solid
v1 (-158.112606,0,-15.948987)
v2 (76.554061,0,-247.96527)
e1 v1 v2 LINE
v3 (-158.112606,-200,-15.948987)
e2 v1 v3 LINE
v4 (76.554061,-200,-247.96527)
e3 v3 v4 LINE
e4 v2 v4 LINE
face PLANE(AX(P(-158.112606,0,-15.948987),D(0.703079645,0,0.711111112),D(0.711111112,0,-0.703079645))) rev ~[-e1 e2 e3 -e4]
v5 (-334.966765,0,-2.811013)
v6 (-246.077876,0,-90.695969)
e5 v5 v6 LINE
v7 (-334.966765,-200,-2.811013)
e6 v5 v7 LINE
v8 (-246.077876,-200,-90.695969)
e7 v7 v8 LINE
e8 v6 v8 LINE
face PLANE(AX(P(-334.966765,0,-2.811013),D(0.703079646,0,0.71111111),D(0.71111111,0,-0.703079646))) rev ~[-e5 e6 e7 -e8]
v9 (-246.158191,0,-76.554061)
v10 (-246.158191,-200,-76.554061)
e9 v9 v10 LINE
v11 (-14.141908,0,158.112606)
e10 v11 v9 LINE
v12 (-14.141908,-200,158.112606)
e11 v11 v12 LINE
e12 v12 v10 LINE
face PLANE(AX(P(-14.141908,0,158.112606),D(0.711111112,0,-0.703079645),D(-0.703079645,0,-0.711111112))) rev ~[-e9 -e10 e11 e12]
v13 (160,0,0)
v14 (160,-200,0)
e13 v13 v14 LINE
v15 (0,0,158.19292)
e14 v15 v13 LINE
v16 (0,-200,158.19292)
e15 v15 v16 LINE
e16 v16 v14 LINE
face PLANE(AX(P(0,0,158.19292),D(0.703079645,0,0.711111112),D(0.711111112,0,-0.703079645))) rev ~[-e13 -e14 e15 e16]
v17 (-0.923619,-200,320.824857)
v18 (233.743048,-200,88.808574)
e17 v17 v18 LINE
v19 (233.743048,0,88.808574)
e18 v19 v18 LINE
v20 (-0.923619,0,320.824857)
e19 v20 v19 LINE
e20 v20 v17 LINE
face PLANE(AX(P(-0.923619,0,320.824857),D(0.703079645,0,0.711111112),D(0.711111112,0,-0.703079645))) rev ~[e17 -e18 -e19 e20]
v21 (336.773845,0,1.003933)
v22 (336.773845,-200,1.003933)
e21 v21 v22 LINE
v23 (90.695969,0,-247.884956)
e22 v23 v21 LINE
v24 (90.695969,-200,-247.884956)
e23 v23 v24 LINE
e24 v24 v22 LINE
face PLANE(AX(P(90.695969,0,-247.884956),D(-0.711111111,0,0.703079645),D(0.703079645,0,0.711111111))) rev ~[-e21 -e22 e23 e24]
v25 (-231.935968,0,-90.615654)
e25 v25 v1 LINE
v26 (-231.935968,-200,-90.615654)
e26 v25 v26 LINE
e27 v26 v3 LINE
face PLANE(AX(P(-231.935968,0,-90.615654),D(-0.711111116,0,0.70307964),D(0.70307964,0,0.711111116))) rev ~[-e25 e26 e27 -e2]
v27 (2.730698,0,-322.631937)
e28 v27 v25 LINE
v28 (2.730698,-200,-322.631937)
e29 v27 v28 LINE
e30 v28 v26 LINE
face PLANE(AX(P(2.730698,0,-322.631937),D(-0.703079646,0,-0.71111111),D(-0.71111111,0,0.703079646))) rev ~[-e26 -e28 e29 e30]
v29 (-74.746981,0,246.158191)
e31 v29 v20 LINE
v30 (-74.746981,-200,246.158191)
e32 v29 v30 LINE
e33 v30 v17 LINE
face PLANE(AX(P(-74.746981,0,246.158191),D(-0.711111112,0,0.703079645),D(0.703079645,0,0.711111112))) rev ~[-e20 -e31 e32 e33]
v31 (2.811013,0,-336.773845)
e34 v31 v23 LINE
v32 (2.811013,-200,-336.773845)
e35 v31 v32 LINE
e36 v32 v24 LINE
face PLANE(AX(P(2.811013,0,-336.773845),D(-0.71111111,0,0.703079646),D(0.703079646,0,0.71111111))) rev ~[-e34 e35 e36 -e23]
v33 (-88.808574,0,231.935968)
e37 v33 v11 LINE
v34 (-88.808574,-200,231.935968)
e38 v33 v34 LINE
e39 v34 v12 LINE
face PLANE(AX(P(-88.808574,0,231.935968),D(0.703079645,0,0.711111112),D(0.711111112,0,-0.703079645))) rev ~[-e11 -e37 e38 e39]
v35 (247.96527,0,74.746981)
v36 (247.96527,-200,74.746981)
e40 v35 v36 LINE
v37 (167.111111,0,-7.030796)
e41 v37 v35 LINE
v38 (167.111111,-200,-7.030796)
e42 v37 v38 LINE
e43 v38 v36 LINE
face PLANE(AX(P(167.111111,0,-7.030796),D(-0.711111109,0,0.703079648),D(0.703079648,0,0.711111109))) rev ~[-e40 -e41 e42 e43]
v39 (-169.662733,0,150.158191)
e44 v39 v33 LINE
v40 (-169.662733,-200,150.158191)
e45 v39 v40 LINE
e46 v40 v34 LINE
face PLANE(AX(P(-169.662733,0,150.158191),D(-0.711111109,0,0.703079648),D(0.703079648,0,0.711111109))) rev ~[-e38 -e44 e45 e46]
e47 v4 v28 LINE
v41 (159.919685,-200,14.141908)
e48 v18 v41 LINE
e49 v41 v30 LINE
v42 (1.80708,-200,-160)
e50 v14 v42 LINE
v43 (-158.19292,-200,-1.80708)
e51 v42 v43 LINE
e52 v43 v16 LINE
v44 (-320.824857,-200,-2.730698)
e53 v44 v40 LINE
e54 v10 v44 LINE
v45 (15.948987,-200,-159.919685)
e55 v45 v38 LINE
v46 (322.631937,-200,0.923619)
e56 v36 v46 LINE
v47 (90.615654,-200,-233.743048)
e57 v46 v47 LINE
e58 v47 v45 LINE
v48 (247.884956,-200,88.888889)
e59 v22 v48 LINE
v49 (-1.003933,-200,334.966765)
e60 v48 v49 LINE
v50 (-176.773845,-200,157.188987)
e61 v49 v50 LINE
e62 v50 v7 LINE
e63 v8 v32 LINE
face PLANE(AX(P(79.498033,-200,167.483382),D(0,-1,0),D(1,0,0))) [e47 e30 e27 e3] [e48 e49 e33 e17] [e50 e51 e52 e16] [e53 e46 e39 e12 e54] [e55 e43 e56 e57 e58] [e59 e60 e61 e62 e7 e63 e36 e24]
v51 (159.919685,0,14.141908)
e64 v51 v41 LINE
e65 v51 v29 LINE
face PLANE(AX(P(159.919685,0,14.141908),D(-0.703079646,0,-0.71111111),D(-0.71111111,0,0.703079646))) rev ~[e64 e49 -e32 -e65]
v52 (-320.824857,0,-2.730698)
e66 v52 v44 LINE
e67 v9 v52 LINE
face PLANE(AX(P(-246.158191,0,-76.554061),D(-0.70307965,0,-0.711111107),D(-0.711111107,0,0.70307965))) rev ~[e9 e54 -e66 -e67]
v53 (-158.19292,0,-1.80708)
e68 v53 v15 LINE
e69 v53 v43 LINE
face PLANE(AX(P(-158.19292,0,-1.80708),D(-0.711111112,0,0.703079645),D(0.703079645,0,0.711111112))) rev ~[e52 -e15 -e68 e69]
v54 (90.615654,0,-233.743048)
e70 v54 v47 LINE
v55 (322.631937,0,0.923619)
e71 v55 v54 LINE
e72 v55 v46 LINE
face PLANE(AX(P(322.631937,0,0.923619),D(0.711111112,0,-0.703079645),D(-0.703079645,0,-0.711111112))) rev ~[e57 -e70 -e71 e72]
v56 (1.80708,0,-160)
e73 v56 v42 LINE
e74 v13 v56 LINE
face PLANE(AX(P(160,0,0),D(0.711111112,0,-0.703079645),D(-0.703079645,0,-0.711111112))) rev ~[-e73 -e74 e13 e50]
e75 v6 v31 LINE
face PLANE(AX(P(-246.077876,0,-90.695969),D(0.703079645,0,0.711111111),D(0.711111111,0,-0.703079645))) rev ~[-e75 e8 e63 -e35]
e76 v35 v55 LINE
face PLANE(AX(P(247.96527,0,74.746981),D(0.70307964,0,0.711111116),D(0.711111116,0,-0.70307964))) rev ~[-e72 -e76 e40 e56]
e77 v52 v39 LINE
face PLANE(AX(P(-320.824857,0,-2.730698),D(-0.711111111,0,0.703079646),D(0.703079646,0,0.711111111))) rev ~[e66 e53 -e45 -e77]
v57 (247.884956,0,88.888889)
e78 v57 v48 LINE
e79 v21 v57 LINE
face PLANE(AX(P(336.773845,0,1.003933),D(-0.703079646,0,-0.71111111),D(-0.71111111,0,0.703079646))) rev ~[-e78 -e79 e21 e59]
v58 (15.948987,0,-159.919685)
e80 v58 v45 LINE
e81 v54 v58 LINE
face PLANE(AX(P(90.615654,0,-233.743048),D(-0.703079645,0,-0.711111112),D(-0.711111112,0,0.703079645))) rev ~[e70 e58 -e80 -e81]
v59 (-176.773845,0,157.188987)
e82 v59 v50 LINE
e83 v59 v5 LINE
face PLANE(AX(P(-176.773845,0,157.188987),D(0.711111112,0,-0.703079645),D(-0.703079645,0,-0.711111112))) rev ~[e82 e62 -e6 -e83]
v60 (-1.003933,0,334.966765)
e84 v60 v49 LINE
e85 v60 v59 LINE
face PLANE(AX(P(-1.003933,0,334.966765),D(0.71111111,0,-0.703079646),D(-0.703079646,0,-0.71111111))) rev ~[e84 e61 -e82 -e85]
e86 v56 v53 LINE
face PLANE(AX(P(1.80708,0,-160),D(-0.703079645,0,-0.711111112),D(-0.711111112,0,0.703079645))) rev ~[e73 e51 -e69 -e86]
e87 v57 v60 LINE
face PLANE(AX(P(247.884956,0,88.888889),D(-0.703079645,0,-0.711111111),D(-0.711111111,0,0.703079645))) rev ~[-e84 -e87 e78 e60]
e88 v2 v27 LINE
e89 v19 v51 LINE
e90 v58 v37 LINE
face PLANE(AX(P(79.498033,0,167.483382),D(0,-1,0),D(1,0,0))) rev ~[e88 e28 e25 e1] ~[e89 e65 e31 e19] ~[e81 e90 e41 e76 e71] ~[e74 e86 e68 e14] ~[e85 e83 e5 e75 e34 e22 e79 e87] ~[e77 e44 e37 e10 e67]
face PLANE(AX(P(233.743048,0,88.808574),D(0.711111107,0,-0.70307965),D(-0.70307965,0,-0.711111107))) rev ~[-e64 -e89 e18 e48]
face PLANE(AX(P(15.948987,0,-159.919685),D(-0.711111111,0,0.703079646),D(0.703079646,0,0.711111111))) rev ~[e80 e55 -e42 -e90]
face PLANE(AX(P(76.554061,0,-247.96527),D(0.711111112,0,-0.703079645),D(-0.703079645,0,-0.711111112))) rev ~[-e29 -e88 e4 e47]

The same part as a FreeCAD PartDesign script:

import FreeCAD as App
import Part
import Sketcher

doc = App.newDocument("Part")
body = doc.addObject("PartDesign::Body", "Body")

sketch1 = body.newObject("Sketcher::SketchObject", "Sketch")
sketch1.AttachmentSupport = (doc.getObject("XZ_Plane"), [""])
sketch1.MapMode = "FlatFace"
sketch1.addGeometry([
    Part.LineSegment(App.Vector(-335, -3, 0), App.Vector(-246, -91, 0)),
    Part.LineSegment(App.Vector(-246, -91, 0), App.Vector(3, -337, 0)),
    Part.LineSegment(App.Vector(3, -337, 0), App.Vector(91, -248, 0)),
    Part.LineSegment(App.Vector(91, -248, 0), App.Vector(337, 1, 0)),
    Part.LineSegment(App.Vector(337, 1, 0), App.Vector(248, 89, 0)),
    Part.LineSegment(App.Vector(248, 89, 0), App.Vector(-1, 335, 0)),
    Part.LineSegment(App.Vector(-1, 335, 0), App.Vector(-177, 157, 0)),
    Part.LineSegment(App.Vector(-177, 157, 0), App.Vector(-335, -3, 0)),
    Part.LineSegment(App.Vector(77, -248, 0), App.Vector(3, -323, 0)),
    Part.LineSegment(App.Vector(3, -323, 0), App.Vector(-232, -91, 0)),
    Part.LineSegment(App.Vector(-232, -91, 0), App.Vector(-158, -16, 0)),
    Part.LineSegment(App.Vector(-158, -16, 0), App.Vector(77, -248, 0)),
    Part.LineSegment(App.Vector(91, -234, 0), App.Vector(16, -160, 0)),
    Part.LineSegment(App.Vector(16, -160, 0), App.Vector(167, -7, 0)),
    Part.LineSegment(App.Vector(167, -7, 0), App.Vector(248, 75, 0)),
    Part.LineSegment(App.Vector(248, 75, 0), App.Vector(323, 1, 0)),
    Part.LineSegment(App.Vector(323, 1, 0), App.Vector(91, -234, 0)),
    Part.LineSegment(App.Vector(-89, 232, 0), App.Vector(-14, 158, 0)),
    Part.LineSegment(App.Vector(-14, 158, 0), App.Vector(-246, -77, 0)),
    Part.LineSegment(App.Vector(-246, -77, 0), App.Vector(-321, -3, 0)),
    Part.LineSegment(App.Vector(-321, -3, 0), App.Vector(-170, 150, 0)),
    Part.LineSegment(App.Vector(-170, 150, 0), App.Vector(-89, 232, 0)),
    Part.LineSegment(App.Vector(0, 158, 0), App.Vector(160, 0, 0)),
    Part.LineSegment(App.Vector(160, 0, 0), App.Vector(2, -160, 0)),
    Part.LineSegment(App.Vector(2, -160, 0), App.Vector(-158, -2, 0)),
    Part.LineSegment(App.Vector(-158, -2, 0), App.Vector(0, 158, 0)),
    Part.LineSegment(App.Vector(160, 14, 0), App.Vector(-75, 246, 0)),
    Part.LineSegment(App.Vector(-75, 246, 0), App.Vector(-1, 321, 0)),
    Part.LineSegment(App.Vector(-1, 321, 0), App.Vector(234, 89, 0)),
    Part.LineSegment(App.Vector(234, 89, 0), App.Vector(160, 14, 0)),
], False)
sketch1.addConstraint([
    Sketcher.Constraint("Coincident", 0, 2, 1, 1),
    Sketcher.Constraint("Coincident", 1, 2, 2, 1),
    Sketcher.Constraint("Coincident", 2, 2, 3, 1),
    Sketcher.Constraint("Coincident", 3, 2, 4, 1),
    Sketcher.Constraint("Coincident", 4, 2, 5, 1),
    Sketcher.Constraint("Coincident", 5, 2, 6, 1),
    Sketcher.Constraint("Coincident", 6, 2, 7, 1),
    Sketcher.Constraint("Coincident", 7, 2, 0, 1),
    Sketcher.Constraint("Coincident", 8, 2, 9, 1),
    Sketcher.Constraint("Coincident", 9, 2, 10, 1),
    Sketcher.Constraint("Coincident", 10, 2, 11, 1),
    Sketcher.Constraint("Coincident", 11, 2, 8, 1),
    Sketcher.Constraint("Coincident", 12, 2, 13, 1),
    Sketcher.Constraint("Coincident", 13, 2, 14, 1),
    Sketcher.Constraint("Coincident", 14, 2, 15, 1),
    Sketcher.Constraint("Coincident", 15, 2, 16, 1),
    Sketcher.Constraint("Coincident", 16, 2, 12, 1),
    Sketcher.Constraint("Coincident", 17, 2, 18, 1),
    Sketcher.Constraint("Coincident", 18, 2, 19, 1),
    Sketcher.Constraint("Coincident", 19, 2, 20, 1),
    Sketcher.Constraint("Coincident", 20, 2, 21, 1),
    Sketcher.Constraint("Coincident", 21, 2, 17, 1),
    Sketcher.Constraint("Coincident", 22, 2, 23, 1),
    Sketcher.Constraint("Coincident", 23, 2, 24, 1),
    Sketcher.Constraint("Coincident", 24, 2, 25, 1),
    Sketcher.Constraint("Coincident", 25, 2, 22, 1),
    Sketcher.Constraint("Coincident", 26, 2, 27, 1),
    Sketcher.Constraint("Coincident", 27, 2, 28, 1),
    Sketcher.Constraint("Coincident", 28, 2, 29, 1),
    Sketcher.Constraint("Coincident", 29, 2, 26, 1),
    Sketcher.Constraint("PointOnObject", 22, 2, -1),
    Sketcher.Constraint("PointOnObject", 25, 2, -2),
    Sketcher.Constraint("Parallel", 0, 1),
    Sketcher.Constraint("Perpendicular", 1, 2),
    Sketcher.Constraint("Parallel", 2, 3),
    Sketcher.Constraint("Perpendicular", 3, 4),
    Sketcher.Constraint("Parallel", 4, 5),
    Sketcher.Constraint("Perpendicular", 5, 6),
    Sketcher.Constraint("Parallel", 6, 7),
    Sketcher.Constraint("Parallel", 7, 8),
    Sketcher.Constraint("Perpendicular", 8, 9),
    Sketcher.Constraint("Perpendicular", 9, 10),
    Sketcher.Constraint("Perpendicular", 10, 11),
    Sketcher.Constraint("Parallel", 11, 12),
    Sketcher.Constraint("Perpendicular", 12, 13),
    Sketcher.Constraint("Parallel", 13, 14),
    Sketcher.Constraint("Perpendicular", 14, 15),
    Sketcher.Constraint("Perpendicular", 15, 16),
    Sketcher.Constraint("Perpendicular", 16, 17),
    Sketcher.Constraint("Perpendicular", 17, 18),
    Sketcher.Constraint("Perpendicular", 18, 19),
    Sketcher.Constraint("Perpendicular", 19, 20),
    Sketcher.Constraint("Parallel", 20, 21),
    Sketcher.Constraint("Perpendicular", 21, 22),
    Sketcher.Constraint("Perpendicular", 22, 23),
    Sketcher.Constraint("Perpendicular", 23, 24),
    Sketcher.Constraint("Perpendicular", 24, 25),
    Sketcher.Constraint("Perpendicular", 25, 26),
    Sketcher.Constraint("Perpendicular", 26, 27),
    Sketcher.Constraint("Perpendicular", 27, 28),
    Sketcher.Constraint("Perpendicular", 28, 29),
    Sketcher.Constraint("Equal", 0, 2),
    Sketcher.Constraint("Equal", 1, 3),
    Sketcher.Constraint("Equal", 2, 4),
    Sketcher.Constraint("Equal", 10, 12),
    Sketcher.Constraint("Equal", 11, 16),
    Sketcher.Constraint("Equal", 15, 17),
    Sketcher.Constraint("Equal", 16, 18),
    Sketcher.Constraint("Equal", 13, 20),
    Sketcher.Constraint("Equal", 7, 22),
    Sketcher.Constraint("Equal", 22, 23),
    Sketcher.Constraint("Equal", 18, 26),
    Sketcher.Constraint("Equal", 19, 27),
    Sketcher.Constraint("Distance", 0, 125.0),
    Sketcher.Constraint("Distance", 1, 350.0),
    Sketcher.Constraint("Distance", 6, 250.000001),
    Sketcher.Constraint("Distance", 8, 105.0),
    Sketcher.Constraint("Distance", 9, 330.0),
    Sketcher.Constraint("Distance", 13, 215.0),
    Sketcher.Constraint("DistanceX", -1, 1, 22, 2, 160.0),
    Sketcher.Constraint("DistanceY", 20, 2, 26, 2, 96.0),
    Sketcher.Constraint("DistanceY", 12, 2, 10, 2, 143.970698),
    Sketcher.Constraint("DistanceX", 2, 2, 14, 2, 157.269301),
    Sketcher.Constraint("DistanceX", 10, 2, 17, 2, 143.970698),
    Sketcher.Constraint("DistanceY", 13, 2, 17, 2, 165.143402),
    Sketcher.Constraint("DistanceY", 0, 2, -1, 1, 90.695969),
    Sketcher.Constraint("DistanceX", -1, 1, 2, 2, 90.695969),
    Sketcher.Constraint("DistanceX", 9, 2, -1, 1, 231.935968),
    Sketcher.Constraint("DistanceY", 11, 2, -1, 1, 247.96527),
    Sketcher.Constraint("DistanceX", 26, 2, -1, 1, 74.746981),
])
pad1 = body.newObject("PartDesign::Pad", "Pad")
pad1.Profile = sketch1
pad1.Length = 200

doc.recompute()
